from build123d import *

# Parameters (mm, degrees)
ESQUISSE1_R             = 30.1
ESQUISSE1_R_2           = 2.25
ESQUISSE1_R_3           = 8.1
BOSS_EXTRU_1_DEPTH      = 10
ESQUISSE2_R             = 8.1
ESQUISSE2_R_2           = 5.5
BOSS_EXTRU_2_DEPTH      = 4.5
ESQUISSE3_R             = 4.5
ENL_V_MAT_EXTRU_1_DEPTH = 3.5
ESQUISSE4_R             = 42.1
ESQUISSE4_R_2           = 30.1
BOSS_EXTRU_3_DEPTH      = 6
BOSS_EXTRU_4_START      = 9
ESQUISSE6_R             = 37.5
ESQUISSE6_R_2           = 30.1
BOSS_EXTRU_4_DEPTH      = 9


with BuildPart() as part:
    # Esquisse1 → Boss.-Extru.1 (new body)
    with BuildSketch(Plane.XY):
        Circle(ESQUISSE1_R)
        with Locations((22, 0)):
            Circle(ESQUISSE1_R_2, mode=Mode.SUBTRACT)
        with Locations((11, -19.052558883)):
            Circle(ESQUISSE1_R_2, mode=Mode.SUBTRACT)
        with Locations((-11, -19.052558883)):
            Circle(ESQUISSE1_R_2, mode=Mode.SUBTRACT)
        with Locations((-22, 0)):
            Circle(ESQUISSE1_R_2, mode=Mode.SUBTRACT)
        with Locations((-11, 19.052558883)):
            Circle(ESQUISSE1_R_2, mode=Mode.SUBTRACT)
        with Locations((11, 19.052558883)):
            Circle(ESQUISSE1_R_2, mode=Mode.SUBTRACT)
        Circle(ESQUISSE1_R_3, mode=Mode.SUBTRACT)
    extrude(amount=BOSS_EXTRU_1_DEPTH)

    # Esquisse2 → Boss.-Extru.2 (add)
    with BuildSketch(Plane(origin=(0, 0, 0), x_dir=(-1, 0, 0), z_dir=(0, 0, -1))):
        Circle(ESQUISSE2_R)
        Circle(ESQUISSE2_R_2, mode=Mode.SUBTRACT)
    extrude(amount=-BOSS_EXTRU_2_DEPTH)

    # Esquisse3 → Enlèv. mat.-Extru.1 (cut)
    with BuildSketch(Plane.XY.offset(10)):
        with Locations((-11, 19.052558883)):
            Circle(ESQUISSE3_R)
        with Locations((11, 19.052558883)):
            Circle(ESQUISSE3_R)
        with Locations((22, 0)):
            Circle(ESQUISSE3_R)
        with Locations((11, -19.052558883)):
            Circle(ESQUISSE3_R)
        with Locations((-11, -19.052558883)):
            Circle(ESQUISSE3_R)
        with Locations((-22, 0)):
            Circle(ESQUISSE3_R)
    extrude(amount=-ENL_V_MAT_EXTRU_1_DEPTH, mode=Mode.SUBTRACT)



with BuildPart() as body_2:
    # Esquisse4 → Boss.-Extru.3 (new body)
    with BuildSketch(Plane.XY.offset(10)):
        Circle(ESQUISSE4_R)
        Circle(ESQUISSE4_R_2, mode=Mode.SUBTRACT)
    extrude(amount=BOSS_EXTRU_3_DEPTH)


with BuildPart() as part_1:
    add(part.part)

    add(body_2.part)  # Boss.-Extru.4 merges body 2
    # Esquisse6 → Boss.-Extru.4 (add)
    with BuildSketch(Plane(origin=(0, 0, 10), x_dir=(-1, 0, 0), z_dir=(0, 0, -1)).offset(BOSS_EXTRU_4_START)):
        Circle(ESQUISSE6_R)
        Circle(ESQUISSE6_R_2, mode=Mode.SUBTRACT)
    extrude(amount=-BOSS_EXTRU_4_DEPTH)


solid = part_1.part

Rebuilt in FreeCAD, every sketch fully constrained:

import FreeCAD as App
import Part
import Sketcher
from FreeCAD import Vector

doc = App.newDocument("Part")
params = doc.addObject("Spreadsheet::Sheet", "Params")
for row, (alias, value) in enumerate([
    ("sketch1_diameter", "60.2 mm"),
    ("sketch1_diameter2", "4.5 mm"),
    ("sketch1_diameter3", "16.2 mm"),
    ("pad1_length", "10 mm"),
    ("sketch2_diameter", "11 mm"),
    ("sketch2_diameter2", "16.2 mm"),
    ("pad2_length", "4.5 mm"),
    ("sketch3_diameter", "9 mm"),
    ("pocket1_length", "3.5 mm"),
    ("sketch4_diameter", "84.2 mm"),
    ("sketch4_diameter2", "60.2 mm"),
    ("pad3_length", "6 mm"),
    ("sketch5_diameter", "75 mm"),
    ("sketch5_diameter2", "60.2 mm"),
    ("pad4_length", "9 mm"),
], start=1):
    params.set(f"A{row}", alias)
    params.set(f"B{row}", "=" + value)
    params.setAlias(f"B{row}", alias)

body = doc.addObject("PartDesign::Body", "Body")

# Sketch on XY plane
sketch1 = doc.addObject("Sketcher::SketchObject", "Sketch")
body.addObject(sketch1)
sketch1.AttachmentSupport = (doc.XY_Plane, [""])
sketch1.MapMode = "FlatFace"
sketch1.addGeometry([
    Part.Circle(Vector(0, 0, 0), Vector(0, 0, 1), 30.1),  # 0
    Part.Circle(Vector(-11, -19.1, 0), Vector(0, 0, 1), 2.2),  # 1
    Part.Circle(Vector(-22, 0, 0), Vector(0, 0, 1), 2.2),  # 2
    Part.Circle(Vector(11, -19.1, 0), Vector(0, 0, 1), 2.2),  # 3
    Part.Circle(Vector(0, 0, 0), Vector(0, 0, 1), 8.1),  # 4
    Part.Circle(Vector(22, 0, 0), Vector(0, 0, 1), 2.2),  # 5
    Part.Circle(Vector(-11, 19.1, 0), Vector(0, 0, 1), 2.2),  # 6
    Part.Circle(Vector(11, 19.1, 0), Vector(0, 0, 1), 2.2),  # 7
], False)
sketch1.addConstraint([
    Sketcher.Constraint("Coincident", 0, 3, -1, 1),
    Sketcher.Constraint("Coincident", 4, 3, -1, 1),
    Sketcher.Constraint("Equal", 1, 2),
    Sketcher.Constraint("Equal", 2, 3),
    Sketcher.Constraint("Equal", 3, 5),
    Sketcher.Constraint("Equal", 5, 6),
    Sketcher.Constraint("Equal", 6, 7),
    Sketcher.Constraint("Symmetric", 2, 3, 5, 3, -1, 1),
    Sketcher.Constraint("Symmetric", 3, 3, 6, 3, -1, 1),
    Sketcher.Constraint("Symmetric", 1, 3, 7, 3, -1, 1),
    Sketcher.Constraint("Symmetric", 1, 3, 3, 3, -2),
    Sketcher.Constraint("PointOnObject", 2, 3, -1),
    Sketcher.Constraint("Diameter", 0, 60.2),
    Sketcher.Constraint("Diameter", 1, 4.5),
    Sketcher.Constraint("Diameter", 4, 16.2),
    Sketcher.Constraint("DistanceX", 1, 3, -1, 1, 11.0),
    Sketcher.Constraint("DistanceX", 2, 3, -1, 1, 22.0),
    Sketcher.Constraint("DistanceY", 1, 3, -1, 1, 19.052559),
])
sketch1.setExpression("Constraints[12]", "Params.sketch1_diameter")
sketch1.setExpression("Constraints[13]", "Params.sketch1_diameter2")
sketch1.setExpression("Constraints[14]", "Params.sketch1_diameter3")
pad1 = doc.addObject("PartDesign::Pad", "Pad")
body.addObject(pad1)
pad1.Profile = sketch1
pad1.setExpression("Length", "Params.pad1_length")

# Sketch on XY plane
sketch2 = doc.addObject("Sketcher::SketchObject", "Sketch001")
body.addObject(sketch2)
sketch2.AttachmentSupport = (doc.XY_Plane, [""])
sketch2.MapMode = "FlatFace"
sketch2.addGeometry([
    Part.Circle(Vector(0, 0, 0), Vector(0, 0, 1), 8),
    Part.Circle(Vector(0, 0, 0), Vector(0, 0, 1), 6),
], False)
sketch2.addConstraint([
    Sketcher.Constraint("Coincident", 0, 3, -1, 1),
    Sketcher.Constraint("Coincident", 1, 3, -1, 1),
    Sketcher.Constraint("Diameter", 1, 11.0),
    Sketcher.Constraint("Diameter", 0, 16.2),
])
sketch2.setExpression("Constraints[2]", "Params.sketch2_diameter")
sketch2.setExpression("Constraints[3]", "Params.sketch2_diameter2")
pad2 = doc.addObject("PartDesign::Pad", "Pad001")
body.addObject(pad2)
pad2.Profile = sketch2
pad2.setExpression("Length", "Params.pad2_length")

# Sketch on XY plane
sketch3 = doc.addObject("Sketcher::SketchObject", "Sketch002")
body.addObject(sketch3)
sketch3.AttachmentSupport = (doc.XY_Plane, [""])
sketch3.MapMode = "FlatFace"
sketch3.AttachmentOffset = App.Placement(Vector(0, 0, 10), App.Rotation())
sketch3.addGeometry([
    Part.Circle(Vector(-11, 19.1, 0), Vector(0, 0, 1), 4.5),  # 0
    Part.Circle(Vector(11, 19.1, 0), Vector(0, 0, 1), 4.5),  # 1
    Part.Circle(Vector(22, 0, 0), Vector(0, 0, 1), 4.5),  # 2
    Part.Circle(Vector(11, -19.1, 0), Vector(0, 0, 1), 4.5),  # 3
    Part.Circle(Vector(-11, -19.1, 0), Vector(0, 0, 1), 4.5),  # 4
    Part.Circle(Vector(-22, 0, 0), Vector(0, 0, 1), 4.5),  # 5
], False)
sketch3.addConstraint([
    Sketcher.Constraint("Equal", 0, 1),
    Sketcher.Constraint("Equal", 1, 2),
    Sketcher.Constraint("Equal", 2, 3),
    Sketcher.Constraint("Equal", 3, 4),
    Sketcher.Constraint("Equal", 4, 5),
    Sketcher.Constraint("Symmetric", 0, 3, 3, 3, -1, 1),
    Sketcher.Constraint("Symmetric", 1, 3, 4, 3, -1, 1),
    Sketcher.Constraint("Symmetric", 2, 3, 5, 3, -1, 1),
    Sketcher.Constraint("Symmetric", 0, 3, 1, 3, -2),
    Sketcher.Constraint("PointOnObject", 2, 3, -1),
    Sketcher.Constraint("Diameter", 0, 9.0),
    Sketcher.Constraint("DistanceX", 0, 3, -1, 1, 11.0),
    Sketcher.Constraint("DistanceX", -1, 1, 2, 3, 22.0),
    Sketcher.Constraint("DistanceY", -1, 1, 0, 3, 19.052559),
])
sketch3.setExpression("Constraints[10]", "Params.sketch3_diameter")
pocket1 = doc.addObject("PartDesign::Pocket", "Pocket")
body.addObject(pocket1)
pocket1.Profile = sketch3
pocket1.setExpression("Length", "Params.pocket1_length")
body2 = doc.addObject("PartDesign::Body", "Body001")

# Sketch on XY plane
sketch4 = doc.addObject("Sketcher::SketchObject", "Sketch003")
body2.addObject(sketch4)
sketch4.AttachmentSupport = (doc.getObject("XY_Plane001"), [""])
sketch4.MapMode = "FlatFace"
sketch4.AttachmentOffset = App.Placement(Vector(0, 0, 10), App.Rotation())
sketch4.addGeometry([
    Part.Circle(Vector(0, 0, 0), Vector(0, 0, 1), 42),
    Part.Circle(Vector(0, 0, 0), Vector(0, 0, 1), 30),
], False)
sketch4.addConstraint([
    Sketcher.Constraint("Coincident", 0, 3, -1, 1),
    Sketcher.Constraint("Coincident", 1, 3, -1, 1),
    Sketcher.Constraint("Diameter", 0, 84.2),
    Sketcher.Constraint("Diameter", 1, 60.2),
])
sketch4.setExpression("Constraints[2]", "Params.sketch4_diameter")
sketch4.setExpression("Constraints[3]", "Params.sketch4_diameter2")
pad3 = doc.addObject("PartDesign::Pad", "Pad002")
body2.addObject(pad3)
pad3.Profile = sketch4
pad3.setExpression("Length", "Params.pad3_length")
body.AllowCompound = True
doc.recompute()

boolean = doc.addObject("PartDesign::Boolean", "Boolean")
body.addObject(boolean)
boolean.Type = "Fuse"
boolean.addObjects([body2])

# Sketch on XY plane
sketch5 = doc.addObject("Sketcher::SketchObject", "Sketch004")
body.addObject(sketch5)
sketch5.AttachmentSupport = (doc.XY_Plane, [""])
sketch5.MapMode = "FlatFace"
sketch5.AttachmentOffset = App.Placement(Vector(0, 0, 1), App.Rotation())
sketch5.addGeometry([
    Part.Circle(Vector(0, 0, 0), Vector(0, 0, 1), 38),
    Part.Circle(Vector(0, 0, 0), Vector(0, 0, 1), 30),
], False)
sketch5.addConstraint([
    Sketcher.Constraint("Coincident", 0, 3, -1, 1),
    Sketcher.Constraint("Coincident", 1, 3, -1, 1),
    Sketcher.Constraint("Diameter", 0, 75.0),
    Sketcher.Constraint("Diameter", 1, 60.2),
])
sketch5.setExpression("Constraints[2]", "Params.sketch5_diameter")
sketch5.setExpression("Constraints[3]", "Params.sketch5_diameter2")
pad4 = doc.addObject("PartDesign::Pad", "Pad003")
body.addObject(pad4)
pad4.Profile = sketch5
pad4.setExpression("Length", "Params.pad4_length")

doc.recompute()
